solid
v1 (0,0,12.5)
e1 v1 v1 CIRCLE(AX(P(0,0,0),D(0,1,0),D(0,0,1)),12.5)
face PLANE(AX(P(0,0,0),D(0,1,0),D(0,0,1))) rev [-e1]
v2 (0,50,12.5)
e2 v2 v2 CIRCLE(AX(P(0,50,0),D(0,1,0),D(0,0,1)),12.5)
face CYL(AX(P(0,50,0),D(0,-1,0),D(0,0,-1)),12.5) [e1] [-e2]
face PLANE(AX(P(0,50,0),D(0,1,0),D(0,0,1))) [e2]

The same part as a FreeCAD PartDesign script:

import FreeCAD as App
import Part
import Sketcher

V = App.Vector
Q = App.Units.Quantity

doc = App.newDocument("Part")
body = doc.addObject("PartDesign::Body", "Body")

# Sketch on XZ plane
sketch1 = doc.addObject("Sketcher::SketchObject", "Sketch")
body.addObject(sketch1)
sketch1.AttachmentSupport = (doc.XZ_Plane, [""])
sketch1.MapMode = "FlatFace"
sketch1.addGeometry(Part.Circle(V(0, 0, 0), V(0, 0, 1), 12), False)
sketch1.addConstraint([
    Sketcher.Constraint("Coincident", 0, 3, -1, 1),
    Sketcher.Constraint("Diameter", 0, Q("25 mm")),
])
pad1 = doc.addObject("PartDesign::Pad", "Pad")
body.addObject(pad1)
pad1.Profile = sketch1
pad1.Length = 50
pad1.Reversed = True

doc.recompute()
